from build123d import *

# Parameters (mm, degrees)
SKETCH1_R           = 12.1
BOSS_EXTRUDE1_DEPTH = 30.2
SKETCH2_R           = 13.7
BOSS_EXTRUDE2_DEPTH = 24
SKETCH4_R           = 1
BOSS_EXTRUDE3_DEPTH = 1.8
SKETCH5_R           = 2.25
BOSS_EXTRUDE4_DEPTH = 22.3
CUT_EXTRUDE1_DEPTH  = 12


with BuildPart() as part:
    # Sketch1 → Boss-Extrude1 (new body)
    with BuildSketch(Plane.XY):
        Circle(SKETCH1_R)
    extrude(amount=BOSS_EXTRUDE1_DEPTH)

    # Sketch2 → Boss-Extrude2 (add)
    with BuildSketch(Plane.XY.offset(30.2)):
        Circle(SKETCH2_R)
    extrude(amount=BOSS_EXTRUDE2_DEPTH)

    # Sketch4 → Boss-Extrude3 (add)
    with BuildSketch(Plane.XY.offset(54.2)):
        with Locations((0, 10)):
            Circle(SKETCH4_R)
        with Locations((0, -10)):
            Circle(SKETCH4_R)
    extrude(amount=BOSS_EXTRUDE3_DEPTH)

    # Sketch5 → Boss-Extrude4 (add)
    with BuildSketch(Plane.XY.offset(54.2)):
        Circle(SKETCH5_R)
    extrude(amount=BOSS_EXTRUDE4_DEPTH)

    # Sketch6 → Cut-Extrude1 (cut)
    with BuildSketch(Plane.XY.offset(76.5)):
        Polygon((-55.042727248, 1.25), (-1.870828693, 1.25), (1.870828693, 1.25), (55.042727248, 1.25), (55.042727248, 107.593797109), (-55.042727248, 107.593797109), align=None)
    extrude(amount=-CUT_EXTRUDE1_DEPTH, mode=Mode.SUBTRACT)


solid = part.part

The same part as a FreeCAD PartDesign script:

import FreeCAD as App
import Part
import Sketcher
from FreeCAD import Vector
Q = App.Units.Quantity

doc = App.newDocument("Part")
params = doc.addObject("Spreadsheet::Sheet", "Params")
for row, (alias, value) in enumerate([
    ("sketch1_diameter", "24.2 mm"),
    ("pad1_length", "30.2 mm"),
    ("sketch2_diameter", "27.4 mm"),
    ("pad2_length", "24 mm"),
    ("sketch3_diameter", "2 mm"),
    ("pad3_length", "1.8 mm"),
    ("sketch4_diameter", "4.5 mm"),
    ("pad4_length", "22.3 mm"),
    ("pocket1_length", "12 mm"),
], start=1):
    params.set(f"A{row}", alias)
    params.set(f"B{row}", "=" + value)
    params.setAlias(f"B{row}", alias)

body = doc.addObject("PartDesign::Body", "Body")

# Sketch on XY plane
sketch1 = body.newObject("Sketcher::SketchObject", "Sketch")
sketch1.AttachmentSupport = (doc.getObject("XY_Plane"), [""])
sketch1.MapMode = "FlatFace"
sketch1.addGeometry(Part.Circle(Vector(0, 0, 0), Vector(0, 0, 1), 12.1), False)
sketch1.addConstraint([
    Sketcher.Constraint("Coincident", 0, 3, -1, 1),
    Sketcher.Constraint("Diameter", 0, Q("24.2 mm")),
])
sketch1.setExpression("Constraints[1]", "Params.sketch1_diameter")
pad1 = body.newObject("PartDesign::Pad", "Pad")
pad1.Profile = sketch1
pad1.setExpression("Length", "Params.pad1_length")

# Sketch on XY plane
sketch2 = body.newObject("Sketcher::SketchObject", "Sketch001")
sketch2.AttachmentSupport = (doc.getObject("XY_Plane"), [""])
sketch2.MapMode = "FlatFace"
sketch2.AttachmentOffset = App.Placement(Vector(0, 0, 30.2), App.Rotation())
sketch2.addGeometry(Part.Circle(Vector(0, 0, 0), Vector(0, 0, 1), 13.7), False)
sketch2.addConstraint([
    Sketcher.Constraint("Coincident", 0, 3, -1, 1),
    Sketcher.Constraint("Diameter", 0, Q("27.4 mm")),
])
sketch2.setExpression("Constraints[1]", "Params.sketch2_diameter")
pad2 = body.newObject("PartDesign::Pad", "Pad001")
pad2.Profile = sketch2
pad2.setExpression("Length", "Params.pad2_length")

# Sketch on XY plane
sketch3 = body.newObject("Sketcher::SketchObject", "Sketch002")
sketch3.AttachmentSupport = (doc.getObject("XY_Plane"), [""])
sketch3.MapMode = "FlatFace"
sketch3.AttachmentOffset = App.Placement(Vector(0, 0, 54.2), App.Rotation())
sketch3.addGeometry([
    Part.Circle(Vector(0, 10, 0), Vector(0, 0, 1), 1),
    Part.Circle(Vector(0, -10, 0), Vector(0, 0, 1), 1),
], False)
sketch3.addConstraint([
    Sketcher.Constraint("Equal", 0, 1),
    Sketcher.Constraint("Symmetric", 0, 3, 1, 3, -1, 1),
    Sketcher.Constraint("PointOnObject", 0, 3, -2),
    Sketcher.Constraint("Diameter", 0, Q("2 mm")),
    Sketcher.Constraint("DistanceY", -1, 1, 0, 3, Q("10 mm")),
])
sketch3.setExpression("Constraints[3]", "Params.sketch3_diameter")
pad3 = body.newObject("PartDesign::Pad", "Pad002")
pad3.Profile = sketch3
pad3.setExpression("Length", "Params.pad3_length")

# Sketch on XY plane
sketch4 = body.newObject("Sketcher::SketchObject", "Sketch003")
sketch4.AttachmentSupport = (doc.getObject("XY_Plane"), [""])
sketch4.MapMode = "FlatFace"
sketch4.AttachmentOffset = App.Placement(Vector(0, 0, 54.2), App.Rotation())
sketch4.addGeometry(Part.Circle(Vector(0, 0, 0), Vector(0, 0, 1), 2.25), False)
sketch4.addConstraint([
    Sketcher.Constraint("Coincident", 0, 3, -1, 1),
    Sketcher.Constraint("Diameter", 0, Q("4.5 mm")),
])
sketch4.setExpression("Constraints[1]", "Params.sketch4_diameter")
pad4 = body.newObject("PartDesign::Pad", "Pad003")
pad4.Profile = sketch4
pad4.setExpression("Length", "Params.pad4_length")

# Sketch on XY plane
sketch5 = body.newObject("Sketcher::SketchObject", "Sketch004")
sketch5.AttachmentSupport = (doc.getObject("XY_Plane"), [""])
sketch5.MapMode = "FlatFace"
sketch5.AttachmentOffset = App.Placement(Vector(0, 0, 76.5), App.Rotation())
sketch5.addGeometry([
    Part.LineSegment(Vector(-55.042727, 1.25, 0), Vector(55.042727, 1.25, 0)),
    Part.LineSegment(Vector(55.042727, 1.25, 0), Vector(55.042727, 107.593797, 0)),
    Part.LineSegment(Vector(55.042727, 107.593797, 0), Vector(-55.042727, 107.593797, 0)),
    Part.LineSegment(Vector(-55.042727, 107.593797, 0), Vector(-55.042727, 1.25, 0)),
], False)
sketch5.addConstraint([
    Sketcher.Constraint("Coincident", 0, 2, 1, 1),
    Sketcher.Constraint("Coincident", 1, 2, 2, 1),
    Sketcher.Constraint("Coincident", 2, 2, 3, 1),
    Sketcher.Constraint("Coincident", 3, 2, 0, 1),
    Sketcher.Constraint("Horizontal", 0),
    Sketcher.Constraint("Vertical", 1),
    Sketcher.Constraint("Horizontal", 2),
    Sketcher.Constraint("Vertical", 3),
    Sketcher.Constraint("DistanceY", -1, 1, 0, 2, Q("1.25 mm")),
    Sketcher.Constraint("DistanceX", 0, 1, 0, 2, Q("110.085454 mm")),
    Sketcher.Constraint("DistanceY", 1, 1, 1, 2, Q("106.343797 mm")),
    Sketcher.Constraint("DistanceX", -1, 1, 0, 2, Q("55.042727 mm")),
])
pocket1 = body.newObject("PartDesign::Pocket", "Pocket")
pocket1.Profile = sketch5
pocket1.setExpression("Length", "Params.pocket1_length")

doc.recompute()
